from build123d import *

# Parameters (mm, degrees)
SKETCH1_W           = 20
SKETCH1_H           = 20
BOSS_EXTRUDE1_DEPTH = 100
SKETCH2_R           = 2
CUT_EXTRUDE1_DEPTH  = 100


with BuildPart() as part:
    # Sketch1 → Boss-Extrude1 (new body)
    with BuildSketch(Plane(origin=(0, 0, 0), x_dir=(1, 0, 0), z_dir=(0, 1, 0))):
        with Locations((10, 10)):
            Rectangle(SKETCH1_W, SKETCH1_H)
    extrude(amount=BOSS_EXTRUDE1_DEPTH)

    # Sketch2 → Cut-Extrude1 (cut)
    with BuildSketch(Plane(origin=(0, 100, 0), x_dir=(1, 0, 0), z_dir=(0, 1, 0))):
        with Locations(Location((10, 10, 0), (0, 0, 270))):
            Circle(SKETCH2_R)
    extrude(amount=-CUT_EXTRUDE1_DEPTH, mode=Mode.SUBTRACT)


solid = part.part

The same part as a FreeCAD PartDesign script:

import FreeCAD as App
import Part
import Sketcher
from FreeCAD import Vector
Q = App.Units.Quantity


def add_polygon(sketch, points):
    """Adds a closed chain of lines whose ends are joined by coincident constraints."""
    first, n = sketch.GeometryCount, len(points)
    for a, b in zip(points, points[1:] + points[:1]):
        sketch.addGeometry(Part.LineSegment(App.Vector(*a, 0), App.Vector(*b, 0)), False)
    for i in range(n):
        sketch.addConstraint(Sketcher.Constraint("Coincident", first + i, 2, first + (i + 1) % n, 1))

doc = App.newDocument("Part")
params = doc.addObject("Spreadsheet::Sheet", "Params")
for row, (alias, value) in enumerate([
    ("sketch1_width", "20 mm"),
    ("pad1_length", "100 mm"),
    ("sketch2_diameter", "4 mm"),
    ("pocket1_length", "100 mm"),
], start=1):
    params.set(f"A{row}", alias)
    params.set(f"B{row}", "=" + value)
    params.setAlias(f"B{row}", alias)

body = doc.addObject("PartDesign::Body", "Body")

# Sketch on XZ plane
sketch1 = body.newObject("Sketcher::SketchObject", "Sketch")
sketch1.AttachmentSupport = (doc.getObject("XZ_Plane"), [""])
sketch1.MapMode = "FlatFace"
add_polygon(sketch1, [(0, -20), (0, 0), (20, 0), (20, -20)])  # lines 0-3
sketch1.addConstraint([
    Sketcher.Constraint("Vertical", 0),
    Sketcher.Constraint("Horizontal", 1),
    Sketcher.Constraint("Vertical", 2),
    Sketcher.Constraint("Horizontal", 3),
    Sketcher.Constraint("Coincident", 0, 2, -1, 1),
    Sketcher.Constraint("Equal", 3, 0),
    Sketcher.Constraint("DistanceX", 1, 1, 1, 2, Q("20 mm")),
])
sketch1.setExpression("Constraints[10]", "Params.sketch1_width")
pad1 = body.newObject("PartDesign::Pad", "Pad")
pad1.Profile = sketch1
pad1.setExpression("Length", "Params.pad1_length")
pad1.Reversed = True

# Sketch on XZ plane
sketch2 = body.newObject("Sketcher::SketchObject", "Sketch001")
sketch2.AttachmentSupport = (doc.getObject("XZ_Plane"), [""])
sketch2.MapMode = "FlatFace"
sketch2.AttachmentOffset = App.Placement(Vector(0, 0, -100), App.Rotation())
sketch2.addGeometry(Part.Circle(Vector(10, -10, 0), Vector(0, 0, 1), 2), False)
sketch2.addConstraint([
    Sketcher.Constraint("Diameter", 0, Q("4 mm")),
    Sketcher.Constraint("DistanceX", -1, 1, 0, 3, Q("10 mm")),
    Sketcher.Constraint("DistanceY", 0, 3, -1, 1, Q("10 mm")),
])
sketch2.setExpression("Constraints[0]", "Params.sketch2_diameter")
pocket1 = body.newObject("PartDesign::Pocket", "Pocket")
pocket1.Profile = sketch2
pocket1.setExpression("Length", "Params.pocket1_length")
pocket1.Reversed = True

doc.recompute()
